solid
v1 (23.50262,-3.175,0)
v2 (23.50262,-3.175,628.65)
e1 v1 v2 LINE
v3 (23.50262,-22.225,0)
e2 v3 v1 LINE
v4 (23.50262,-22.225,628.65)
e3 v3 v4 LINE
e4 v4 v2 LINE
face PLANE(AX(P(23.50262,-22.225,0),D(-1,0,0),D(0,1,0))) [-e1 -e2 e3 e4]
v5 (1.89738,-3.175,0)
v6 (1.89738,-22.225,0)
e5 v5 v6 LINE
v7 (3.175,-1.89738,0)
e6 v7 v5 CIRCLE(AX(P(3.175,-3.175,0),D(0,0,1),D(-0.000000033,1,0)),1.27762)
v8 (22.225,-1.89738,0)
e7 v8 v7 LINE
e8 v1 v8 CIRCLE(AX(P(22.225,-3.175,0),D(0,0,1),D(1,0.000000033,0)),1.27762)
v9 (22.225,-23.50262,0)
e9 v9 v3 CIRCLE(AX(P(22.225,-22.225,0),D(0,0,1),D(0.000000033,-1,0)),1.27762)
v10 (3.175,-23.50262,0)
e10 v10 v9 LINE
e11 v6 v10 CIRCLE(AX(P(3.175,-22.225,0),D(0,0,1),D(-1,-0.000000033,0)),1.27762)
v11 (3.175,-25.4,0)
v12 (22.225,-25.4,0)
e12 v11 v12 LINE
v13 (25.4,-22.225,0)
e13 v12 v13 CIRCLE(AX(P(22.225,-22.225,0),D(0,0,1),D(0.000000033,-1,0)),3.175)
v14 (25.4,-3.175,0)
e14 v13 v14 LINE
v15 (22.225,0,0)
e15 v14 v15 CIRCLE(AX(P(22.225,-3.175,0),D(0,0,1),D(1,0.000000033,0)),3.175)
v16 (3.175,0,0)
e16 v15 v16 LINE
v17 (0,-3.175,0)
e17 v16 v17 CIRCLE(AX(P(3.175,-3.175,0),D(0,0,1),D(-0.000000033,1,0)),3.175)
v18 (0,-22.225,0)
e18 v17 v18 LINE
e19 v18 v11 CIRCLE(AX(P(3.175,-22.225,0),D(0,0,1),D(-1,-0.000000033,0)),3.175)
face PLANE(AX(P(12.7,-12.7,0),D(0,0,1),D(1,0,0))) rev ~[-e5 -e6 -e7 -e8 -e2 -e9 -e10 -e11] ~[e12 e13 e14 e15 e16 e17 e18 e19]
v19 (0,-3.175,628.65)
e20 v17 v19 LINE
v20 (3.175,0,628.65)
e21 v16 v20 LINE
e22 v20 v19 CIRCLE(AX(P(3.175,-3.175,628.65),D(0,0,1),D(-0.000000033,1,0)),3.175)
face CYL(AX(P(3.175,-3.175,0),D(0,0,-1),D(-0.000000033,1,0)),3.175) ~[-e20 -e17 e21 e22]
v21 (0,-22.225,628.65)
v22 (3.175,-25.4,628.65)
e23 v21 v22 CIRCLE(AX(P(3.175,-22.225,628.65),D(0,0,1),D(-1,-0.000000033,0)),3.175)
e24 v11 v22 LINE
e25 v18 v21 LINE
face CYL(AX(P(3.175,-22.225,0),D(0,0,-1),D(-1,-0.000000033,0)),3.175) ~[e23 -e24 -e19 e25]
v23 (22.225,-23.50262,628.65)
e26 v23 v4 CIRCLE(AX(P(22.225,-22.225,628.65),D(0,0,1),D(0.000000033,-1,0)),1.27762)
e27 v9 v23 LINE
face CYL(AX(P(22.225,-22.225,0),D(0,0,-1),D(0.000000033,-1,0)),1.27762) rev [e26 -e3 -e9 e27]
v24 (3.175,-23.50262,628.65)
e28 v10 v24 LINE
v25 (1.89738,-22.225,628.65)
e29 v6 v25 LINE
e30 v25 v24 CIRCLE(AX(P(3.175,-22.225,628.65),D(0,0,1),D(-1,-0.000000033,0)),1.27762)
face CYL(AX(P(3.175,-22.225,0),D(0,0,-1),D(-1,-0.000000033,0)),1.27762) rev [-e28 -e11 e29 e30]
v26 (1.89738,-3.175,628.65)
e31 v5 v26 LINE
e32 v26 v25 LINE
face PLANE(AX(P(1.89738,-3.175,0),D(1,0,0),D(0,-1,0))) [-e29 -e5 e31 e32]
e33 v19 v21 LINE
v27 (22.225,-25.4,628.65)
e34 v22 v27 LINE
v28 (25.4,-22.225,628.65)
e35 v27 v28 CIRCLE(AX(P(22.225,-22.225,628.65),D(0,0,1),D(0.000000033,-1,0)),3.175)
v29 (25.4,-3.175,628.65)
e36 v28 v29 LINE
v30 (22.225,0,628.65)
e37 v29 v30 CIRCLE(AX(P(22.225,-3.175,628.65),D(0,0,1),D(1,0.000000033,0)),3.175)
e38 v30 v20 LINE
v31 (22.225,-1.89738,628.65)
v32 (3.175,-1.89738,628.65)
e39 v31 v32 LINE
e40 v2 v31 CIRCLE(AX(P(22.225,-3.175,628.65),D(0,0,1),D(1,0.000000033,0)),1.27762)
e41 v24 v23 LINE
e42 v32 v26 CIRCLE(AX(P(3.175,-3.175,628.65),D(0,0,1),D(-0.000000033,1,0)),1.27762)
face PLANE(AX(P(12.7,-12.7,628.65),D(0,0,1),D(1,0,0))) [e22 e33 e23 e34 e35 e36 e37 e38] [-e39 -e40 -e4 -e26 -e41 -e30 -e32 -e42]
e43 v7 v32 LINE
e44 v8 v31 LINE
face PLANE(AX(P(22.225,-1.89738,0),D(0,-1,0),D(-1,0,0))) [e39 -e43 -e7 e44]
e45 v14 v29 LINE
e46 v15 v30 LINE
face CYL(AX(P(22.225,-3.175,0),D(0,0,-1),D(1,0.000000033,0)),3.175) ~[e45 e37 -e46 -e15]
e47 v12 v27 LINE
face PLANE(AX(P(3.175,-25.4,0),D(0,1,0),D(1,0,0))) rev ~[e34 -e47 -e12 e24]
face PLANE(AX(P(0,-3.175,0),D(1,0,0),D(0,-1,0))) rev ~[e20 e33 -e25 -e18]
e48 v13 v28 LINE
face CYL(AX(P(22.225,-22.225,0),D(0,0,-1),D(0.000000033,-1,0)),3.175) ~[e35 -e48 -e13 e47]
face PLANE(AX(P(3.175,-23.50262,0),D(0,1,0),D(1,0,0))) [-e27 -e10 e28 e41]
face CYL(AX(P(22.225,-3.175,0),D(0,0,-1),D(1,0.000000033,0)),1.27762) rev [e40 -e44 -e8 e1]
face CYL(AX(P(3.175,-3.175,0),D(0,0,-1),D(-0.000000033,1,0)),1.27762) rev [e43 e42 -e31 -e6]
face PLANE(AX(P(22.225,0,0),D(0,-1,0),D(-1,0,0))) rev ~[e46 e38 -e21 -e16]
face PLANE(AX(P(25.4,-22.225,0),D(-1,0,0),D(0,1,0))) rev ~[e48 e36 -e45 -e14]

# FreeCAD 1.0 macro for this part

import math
import FreeCAD as App
import Part
import Sketcher
Q = App.Units.Quantity


def faces_at(feature, points):
    """Names of the faces that lie closest to the given points."""
    faces = feature.Shape.Faces
    near = lambda p: min(range(len(faces)), key=lambda i: faces[i].distToShape(Part.Vertex(*p))[0])
    return sorted({f"Face{near(p) + 1}" for p in points})

doc = App.newDocument("Part")
params = doc.addObject("Spreadsheet::Sheet", "Params")
for row, (alias, value) in enumerate([
    ("sketch1_radius", "0.125 in"),
    ("pad1_length", "24.75 in"),
    ("thickness_wall", "0.0747 in"),
], start=1):
    params.set(f"A{row}", alias)
    params.set(f"B{row}", "=" + value)
    params.setAlias(f"B{row}", alias)

body = doc.addObject("PartDesign::Body", "Body")

sketch1 = body.newObject("Sketcher::SketchObject", "Sketch")
sketch1.AttachmentSupport = (doc.getObject("XY_Plane"), [""])
sketch1.MapMode = "FlatFace"
sketch1.addGeometry([
    Part.LineSegment(App.Vector(22.2, 0, 0), App.Vector(3.2, 0, 0)),
    Part.ArcOfCircle(Part.Circle(App.Vector(3.2, -3.2, 0), App.Vector(0, 0, 1), 3.2), math.radians(90), math.radians(180)),
    Part.LineSegment(App.Vector(0, -3.2, 0), App.Vector(0, -22.2, 0)),
    Part.ArcOfCircle(Part.Circle(App.Vector(3.2, -22.2, 0), App.Vector(0, 0, 1), 3.2), math.radians(-180), math.radians(-90)),
    Part.LineSegment(App.Vector(3.2, -25.4, 0), App.Vector(22.2, -25.4, 0)),
    Part.ArcOfCircle(Part.Circle(App.Vector(22.2, -22.2, 0), App.Vector(0, 0, 1), 3.2), math.radians(-90), math.radians(0)),
    Part.LineSegment(App.Vector(25.4, -22.2, 0), App.Vector(25.4, -3.2, 0)),
    Part.ArcOfCircle(Part.Circle(App.Vector(22.2, -3.2, 0), App.Vector(0, 0, 1), 3.2), math.radians(0), math.radians(90)),
], False)
sketch1.addConstraint([
    Sketcher.Constraint("Tangent", 0, 2, 1, 1),
    Sketcher.Constraint("Tangent", 1, 2, 2, 1),
    Sketcher.Constraint("Tangent", 2, 2, 3, 1),
    Sketcher.Constraint("Tangent", 3, 2, 4, 1),
    Sketcher.Constraint("Tangent", 4, 2, 5, 1),
    Sketcher.Constraint("Tangent", 5, 2, 6, 1),
    Sketcher.Constraint("Tangent", 6, 2, 7, 1),
    Sketcher.Constraint("Tangent", 7, 2, 0, 1),
    Sketcher.Constraint("Horizontal", 0),
    Sketcher.Constraint("Vertical", 2),
    Sketcher.Constraint("Horizontal", 4),
    Sketcher.Constraint("Vertical", 6),
    Sketcher.Constraint("Equal", 1, 3),
    Sketcher.Constraint("Equal", 3, 5),
    Sketcher.Constraint("Equal", 5, 7),
    Sketcher.Constraint("PointOnObject", 0, 2, -1),
    Sketcher.Constraint("PointOnObject", 1, 2, -2),
    Sketcher.Constraint("Equal", 4, 2),
    Sketcher.Constraint("DistanceY", 3, 2, -1, 1, Q("1 in")),
    Sketcher.Constraint("Radius", 1, Q("0.125 in")),
])
sketch1.setExpression("Constraints[19]", "Params.sketch1_radius")
pad1 = body.newObject("PartDesign::Pad", "Pad")
pad1.Profile = sketch1
pad1.setExpression("Length", "Params.pad1_length")
doc.recompute()

thickness = body.newObject("PartDesign::Thickness", "Thickness")
thickness.Base = (pad1, faces_at(pad1, [(12.7, -12.7, 628.65), (12.7, -12.7, 0)]))
thickness.setExpression("Value", "Params.thickness_wall")
thickness.Reversed = True
thickness.Join = "Arc"

doc.recompute()
